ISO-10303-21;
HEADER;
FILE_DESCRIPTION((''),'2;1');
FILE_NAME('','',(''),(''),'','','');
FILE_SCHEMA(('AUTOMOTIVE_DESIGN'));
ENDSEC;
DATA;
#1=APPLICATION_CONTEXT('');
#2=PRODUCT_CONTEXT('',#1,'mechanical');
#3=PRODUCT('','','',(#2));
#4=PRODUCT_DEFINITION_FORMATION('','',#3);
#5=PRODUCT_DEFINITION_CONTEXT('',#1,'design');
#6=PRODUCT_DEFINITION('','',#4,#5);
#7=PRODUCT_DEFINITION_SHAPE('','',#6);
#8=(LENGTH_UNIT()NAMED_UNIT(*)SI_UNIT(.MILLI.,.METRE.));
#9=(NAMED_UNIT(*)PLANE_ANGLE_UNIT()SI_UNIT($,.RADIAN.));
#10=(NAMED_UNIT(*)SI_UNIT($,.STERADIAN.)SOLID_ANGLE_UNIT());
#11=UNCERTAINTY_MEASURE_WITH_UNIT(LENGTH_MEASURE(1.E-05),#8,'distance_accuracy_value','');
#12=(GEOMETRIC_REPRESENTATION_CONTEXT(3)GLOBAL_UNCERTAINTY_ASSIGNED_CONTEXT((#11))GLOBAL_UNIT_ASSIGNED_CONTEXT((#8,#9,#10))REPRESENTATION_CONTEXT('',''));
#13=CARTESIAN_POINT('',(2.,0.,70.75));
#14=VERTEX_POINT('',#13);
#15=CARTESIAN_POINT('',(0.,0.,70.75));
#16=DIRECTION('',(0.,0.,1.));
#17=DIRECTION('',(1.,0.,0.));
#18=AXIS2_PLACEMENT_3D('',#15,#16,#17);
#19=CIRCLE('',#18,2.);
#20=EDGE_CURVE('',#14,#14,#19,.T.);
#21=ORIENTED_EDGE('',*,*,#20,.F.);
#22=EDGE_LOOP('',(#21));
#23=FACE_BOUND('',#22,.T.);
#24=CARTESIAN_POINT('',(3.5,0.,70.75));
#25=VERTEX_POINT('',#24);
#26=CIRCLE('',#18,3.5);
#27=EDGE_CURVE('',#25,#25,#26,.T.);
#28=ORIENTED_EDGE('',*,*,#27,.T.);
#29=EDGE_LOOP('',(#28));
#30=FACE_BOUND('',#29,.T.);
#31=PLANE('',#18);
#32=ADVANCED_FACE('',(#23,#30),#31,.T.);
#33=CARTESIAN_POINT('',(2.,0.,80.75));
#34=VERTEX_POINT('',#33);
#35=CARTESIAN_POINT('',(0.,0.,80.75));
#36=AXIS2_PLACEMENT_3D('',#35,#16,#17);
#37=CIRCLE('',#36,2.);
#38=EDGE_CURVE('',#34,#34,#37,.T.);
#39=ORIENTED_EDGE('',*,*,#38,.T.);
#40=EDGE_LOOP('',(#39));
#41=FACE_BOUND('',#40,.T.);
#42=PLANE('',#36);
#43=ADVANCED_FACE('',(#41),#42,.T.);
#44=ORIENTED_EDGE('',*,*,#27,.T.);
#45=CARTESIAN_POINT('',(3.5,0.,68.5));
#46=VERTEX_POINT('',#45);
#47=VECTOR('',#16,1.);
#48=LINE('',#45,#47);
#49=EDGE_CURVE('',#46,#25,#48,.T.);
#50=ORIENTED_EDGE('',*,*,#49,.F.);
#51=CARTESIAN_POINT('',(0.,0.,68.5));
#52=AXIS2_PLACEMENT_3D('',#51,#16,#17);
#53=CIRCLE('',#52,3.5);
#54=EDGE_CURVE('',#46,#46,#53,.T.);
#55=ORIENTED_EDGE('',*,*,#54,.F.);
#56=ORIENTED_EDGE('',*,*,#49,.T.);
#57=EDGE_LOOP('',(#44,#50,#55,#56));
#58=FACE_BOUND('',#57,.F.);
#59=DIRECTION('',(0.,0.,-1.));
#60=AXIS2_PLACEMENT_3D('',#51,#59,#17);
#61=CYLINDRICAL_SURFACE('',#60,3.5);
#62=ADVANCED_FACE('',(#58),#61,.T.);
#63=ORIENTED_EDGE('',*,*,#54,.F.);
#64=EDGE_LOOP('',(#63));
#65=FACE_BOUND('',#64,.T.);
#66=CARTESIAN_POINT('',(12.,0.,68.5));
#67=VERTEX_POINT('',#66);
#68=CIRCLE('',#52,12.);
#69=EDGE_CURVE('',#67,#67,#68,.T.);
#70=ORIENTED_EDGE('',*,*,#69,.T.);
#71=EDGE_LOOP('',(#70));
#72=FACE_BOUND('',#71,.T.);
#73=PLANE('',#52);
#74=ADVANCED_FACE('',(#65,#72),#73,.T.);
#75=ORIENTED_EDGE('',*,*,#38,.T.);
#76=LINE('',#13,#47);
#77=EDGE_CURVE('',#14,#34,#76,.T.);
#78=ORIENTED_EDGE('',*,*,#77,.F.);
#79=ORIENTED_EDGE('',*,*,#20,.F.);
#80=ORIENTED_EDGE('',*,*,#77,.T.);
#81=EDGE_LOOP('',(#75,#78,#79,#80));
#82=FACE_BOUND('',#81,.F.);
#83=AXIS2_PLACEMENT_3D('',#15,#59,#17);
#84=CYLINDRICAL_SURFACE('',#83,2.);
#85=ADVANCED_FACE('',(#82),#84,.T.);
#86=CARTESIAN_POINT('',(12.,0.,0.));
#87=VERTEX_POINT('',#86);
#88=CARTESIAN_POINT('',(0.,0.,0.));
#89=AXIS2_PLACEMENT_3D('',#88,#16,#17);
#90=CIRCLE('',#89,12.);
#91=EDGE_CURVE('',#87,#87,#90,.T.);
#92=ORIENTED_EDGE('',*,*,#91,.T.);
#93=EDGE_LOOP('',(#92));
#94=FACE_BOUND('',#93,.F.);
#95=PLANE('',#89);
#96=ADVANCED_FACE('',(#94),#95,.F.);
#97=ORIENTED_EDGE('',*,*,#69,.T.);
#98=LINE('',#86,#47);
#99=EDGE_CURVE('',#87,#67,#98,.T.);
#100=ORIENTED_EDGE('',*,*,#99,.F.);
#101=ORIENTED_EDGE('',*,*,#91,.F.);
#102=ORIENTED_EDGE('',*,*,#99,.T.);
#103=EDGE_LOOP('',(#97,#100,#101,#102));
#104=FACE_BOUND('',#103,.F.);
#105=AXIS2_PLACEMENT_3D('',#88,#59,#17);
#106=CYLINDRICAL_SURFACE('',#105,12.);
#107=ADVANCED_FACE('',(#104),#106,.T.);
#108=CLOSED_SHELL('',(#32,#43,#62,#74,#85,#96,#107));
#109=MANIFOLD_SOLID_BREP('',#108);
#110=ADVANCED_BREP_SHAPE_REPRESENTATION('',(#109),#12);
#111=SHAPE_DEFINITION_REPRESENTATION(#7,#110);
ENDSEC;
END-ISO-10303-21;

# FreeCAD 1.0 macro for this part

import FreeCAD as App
import Part
import Sketcher

V = App.Vector
Q = App.Units.Quantity

doc = App.newDocument("Part")
body = doc.addObject("PartDesign::Body", "Body")

# Sketch on XY plane
sketch1 = doc.addObject("Sketcher::SketchObject", "Sketch")
body.addObject(sketch1)
sketch1.AttachmentSupport = (doc.XY_Plane, [""])
sketch1.MapMode = "FlatFace"
sketch1.addGeometry(Part.Circle(V(0, 0, 0), V(0, 0, 1), 12), False)
sketch1.addConstraint([
    Sketcher.Constraint("Coincident", 0, 3, -1, 1),
    Sketcher.Constraint("Diameter", 0, Q("24 mm")),
])
pad1 = doc.addObject("PartDesign::Pad", "Pad")
body.addObject(pad1)
pad1.Profile = sketch1
pad1.Length = 68.5

# Sketch on XY plane
sketch2 = doc.addObject("Sketcher::SketchObject", "Sketch001")
body.addObject(sketch2)
sketch2.AttachmentSupport = (doc.XY_Plane, [""])
sketch2.MapMode = "FlatFace"
sketch2.AttachmentOffset = App.Placement(V(0, 0, 68.5), App.Rotation())
sketch2.addGeometry(Part.Circle(V(0, 0, 0), V(0, 0, 1), 3.5), False)
sketch2.addConstraint([
    Sketcher.Constraint("Coincident", 0, 3, -1, 1),
    Sketcher.Constraint("Diameter", 0, Q("7 mm")),
])
pad2 = doc.addObject("PartDesign::Pad", "Pad001")
body.addObject(pad2)
pad2.Profile = sketch2
pad2.Length = 2.25

# Sketch on XY plane
sketch3 = doc.addObject("Sketcher::SketchObject", "Sketch002")
body.addObject(sketch3)
sketch3.AttachmentSupport = (doc.XY_Plane, [""])
sketch3.MapMode = "FlatFace"
sketch3.AttachmentOffset = App.Placement(V(0, 0, 70.75), App.Rotation())
sketch3.addGeometry(Part.Circle(V(0, 0, 0), V(0, 0, 1), 2), False)
sketch3.addConstraint([
    Sketcher.Constraint("Coincident", 0, 3, -1, 1),
    Sketcher.Constraint("Diameter", 0, Q("4 mm")),
])
pad3 = doc.addObject("PartDesign::Pad", "Pad002")
body.addObject(pad3)
pad3.Profile = sketch3
pad3.Length = 10

doc.recompute()
